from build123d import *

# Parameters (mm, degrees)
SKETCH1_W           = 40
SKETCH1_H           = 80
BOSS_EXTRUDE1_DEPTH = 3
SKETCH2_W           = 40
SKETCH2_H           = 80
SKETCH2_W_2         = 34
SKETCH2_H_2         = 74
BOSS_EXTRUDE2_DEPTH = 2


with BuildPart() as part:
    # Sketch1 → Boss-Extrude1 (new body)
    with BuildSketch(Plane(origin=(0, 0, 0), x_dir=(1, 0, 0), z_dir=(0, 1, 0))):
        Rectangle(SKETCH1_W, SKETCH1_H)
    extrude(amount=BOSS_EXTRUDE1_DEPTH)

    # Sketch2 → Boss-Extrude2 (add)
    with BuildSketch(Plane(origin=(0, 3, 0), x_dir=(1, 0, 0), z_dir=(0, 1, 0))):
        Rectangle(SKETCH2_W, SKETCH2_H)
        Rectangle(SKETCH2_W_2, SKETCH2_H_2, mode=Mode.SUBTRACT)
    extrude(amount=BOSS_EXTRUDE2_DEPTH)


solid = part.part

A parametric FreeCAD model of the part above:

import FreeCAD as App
import Part
import Sketcher

V = App.Vector
Q = App.Units.Quantity


def add_polygon(sketch, points):
    """Adds a closed chain of lines whose ends are joined by coincident constraints."""
    first, n = sketch.GeometryCount, len(points)
    for a, b in zip(points, points[1:] + points[:1]):
        sketch.addGeometry(Part.LineSegment(App.Vector(*a, 0), App.Vector(*b, 0)), False)
    for i in range(n):
        sketch.addConstraint(Sketcher.Constraint("Coincident", first + i, 2, first + (i + 1) % n, 1))

doc = App.newDocument("Part")
params = doc.addObject("Spreadsheet::Sheet", "Params")
for row, (alias, value) in enumerate([
    ("sketch1_width", "40 mm"),
    ("sketch1_height", "80 mm"),
    ("pad1_length", "3 mm"),
    ("sketch2_width", "40 mm"),
    ("sketch2_width2", "34 mm"),
    ("sketch2_height", "80 mm"),
    ("sketch2_height2", "74 mm"),
    ("pad2_length", "2 mm"),
], start=1):
    params.set(f"A{row}", alias)
    params.set(f"B{row}", "=" + value)
    params.setAlias(f"B{row}", alias)

body = doc.addObject("PartDesign::Body", "Body")

sketch1 = doc.addObject("Sketcher::SketchObject", "Sketch")
body.addObject(sketch1)
sketch1.AttachmentSupport = (doc.XZ_Plane, [""])
sketch1.MapMode = "FlatFace"
add_polygon(sketch1, [(-20, -40), (-20, 40), (20, 40), (20, -40)])
sketch1.addConstraint([
    Sketcher.Constraint("Vertical", 0),
    Sketcher.Constraint("Horizontal", 1),
    Sketcher.Constraint("Vertical", 2),
    Sketcher.Constraint("Horizontal", 3),
    Sketcher.Constraint("Symmetric", 0, 2, 2, 2, -1, 1),
    Sketcher.Constraint("DistanceX", 1, 1, 1, 2, Q("40 mm")),
    Sketcher.Constraint("DistanceY", 0, 1, 0, 2, Q("80 mm")),
])
sketch1.setExpression("Constraints[9]", "Params.sketch1_width")
sketch1.setExpression("Constraints[10]", "Params.sketch1_height")
pad1 = doc.addObject("PartDesign::Pad", "Pad")
body.addObject(pad1)
pad1.Profile = sketch1
pad1.setExpression("Length", "Params.pad1_length")
pad1.Reversed = True

sketch2 = doc.addObject("Sketcher::SketchObject", "Sketch001")
body.addObject(sketch2)
sketch2.AttachmentSupport = (doc.XZ_Plane, [""])
sketch2.MapMode = "FlatFace"
sketch2.AttachmentOffset = App.Placement(V(0, 0, -3), App.Rotation())
add_polygon(sketch2, [(-20, -40), (-20, 40), (20, 40), (20, -40)])
add_polygon(sketch2, [(17, 37), (-17, 37), (-17, -37), (17, -37)])
sketch2.addConstraint([
    Sketcher.Constraint("Vertical", 0),
    Sketcher.Constraint("Horizontal", 1),
    Sketcher.Constraint("Vertical", 2),
    Sketcher.Constraint("Horizontal", 3),
    Sketcher.Constraint("Horizontal", 4),
    Sketcher.Constraint("Vertical", 5),
    Sketcher.Constraint("Horizontal", 6),
    Sketcher.Constraint("Vertical", 7),
    Sketcher.Constraint("Symmetric", 0, 2, 2, 2, -1, 1),
    Sketcher.Constraint("Symmetric", 4, 2, 6, 2, -1, 1),
    Sketcher.Constraint("DistanceX", 1, 1, 1, 2, Q("40 mm")),
    Sketcher.Constraint("DistanceX", 4, 2, 4, 1, Q("34 mm")),
    Sketcher.Constraint("DistanceY", 0, 1, 0, 2, Q("80 mm")),
    Sketcher.Constraint("DistanceY", 5, 2, 5, 1, Q("74 mm")),
])
sketch2.setExpression("Constraints[18]", "Params.sketch2_width")
sketch2.setExpression("Constraints[19]", "Params.sketch2_width2")
sketch2.setExpression("Constraints[20]", "Params.sketch2_height")
sketch2.setExpression("Constraints[21]", "Params.sketch2_height2")
pad2 = doc.addObject("PartDesign::Pad", "Pad001")
body.addObject(pad2)
pad2.Profile = sketch2
pad2.setExpression("Length", "Params.pad2_length")
pad2.Reversed = True

doc.recompute()
